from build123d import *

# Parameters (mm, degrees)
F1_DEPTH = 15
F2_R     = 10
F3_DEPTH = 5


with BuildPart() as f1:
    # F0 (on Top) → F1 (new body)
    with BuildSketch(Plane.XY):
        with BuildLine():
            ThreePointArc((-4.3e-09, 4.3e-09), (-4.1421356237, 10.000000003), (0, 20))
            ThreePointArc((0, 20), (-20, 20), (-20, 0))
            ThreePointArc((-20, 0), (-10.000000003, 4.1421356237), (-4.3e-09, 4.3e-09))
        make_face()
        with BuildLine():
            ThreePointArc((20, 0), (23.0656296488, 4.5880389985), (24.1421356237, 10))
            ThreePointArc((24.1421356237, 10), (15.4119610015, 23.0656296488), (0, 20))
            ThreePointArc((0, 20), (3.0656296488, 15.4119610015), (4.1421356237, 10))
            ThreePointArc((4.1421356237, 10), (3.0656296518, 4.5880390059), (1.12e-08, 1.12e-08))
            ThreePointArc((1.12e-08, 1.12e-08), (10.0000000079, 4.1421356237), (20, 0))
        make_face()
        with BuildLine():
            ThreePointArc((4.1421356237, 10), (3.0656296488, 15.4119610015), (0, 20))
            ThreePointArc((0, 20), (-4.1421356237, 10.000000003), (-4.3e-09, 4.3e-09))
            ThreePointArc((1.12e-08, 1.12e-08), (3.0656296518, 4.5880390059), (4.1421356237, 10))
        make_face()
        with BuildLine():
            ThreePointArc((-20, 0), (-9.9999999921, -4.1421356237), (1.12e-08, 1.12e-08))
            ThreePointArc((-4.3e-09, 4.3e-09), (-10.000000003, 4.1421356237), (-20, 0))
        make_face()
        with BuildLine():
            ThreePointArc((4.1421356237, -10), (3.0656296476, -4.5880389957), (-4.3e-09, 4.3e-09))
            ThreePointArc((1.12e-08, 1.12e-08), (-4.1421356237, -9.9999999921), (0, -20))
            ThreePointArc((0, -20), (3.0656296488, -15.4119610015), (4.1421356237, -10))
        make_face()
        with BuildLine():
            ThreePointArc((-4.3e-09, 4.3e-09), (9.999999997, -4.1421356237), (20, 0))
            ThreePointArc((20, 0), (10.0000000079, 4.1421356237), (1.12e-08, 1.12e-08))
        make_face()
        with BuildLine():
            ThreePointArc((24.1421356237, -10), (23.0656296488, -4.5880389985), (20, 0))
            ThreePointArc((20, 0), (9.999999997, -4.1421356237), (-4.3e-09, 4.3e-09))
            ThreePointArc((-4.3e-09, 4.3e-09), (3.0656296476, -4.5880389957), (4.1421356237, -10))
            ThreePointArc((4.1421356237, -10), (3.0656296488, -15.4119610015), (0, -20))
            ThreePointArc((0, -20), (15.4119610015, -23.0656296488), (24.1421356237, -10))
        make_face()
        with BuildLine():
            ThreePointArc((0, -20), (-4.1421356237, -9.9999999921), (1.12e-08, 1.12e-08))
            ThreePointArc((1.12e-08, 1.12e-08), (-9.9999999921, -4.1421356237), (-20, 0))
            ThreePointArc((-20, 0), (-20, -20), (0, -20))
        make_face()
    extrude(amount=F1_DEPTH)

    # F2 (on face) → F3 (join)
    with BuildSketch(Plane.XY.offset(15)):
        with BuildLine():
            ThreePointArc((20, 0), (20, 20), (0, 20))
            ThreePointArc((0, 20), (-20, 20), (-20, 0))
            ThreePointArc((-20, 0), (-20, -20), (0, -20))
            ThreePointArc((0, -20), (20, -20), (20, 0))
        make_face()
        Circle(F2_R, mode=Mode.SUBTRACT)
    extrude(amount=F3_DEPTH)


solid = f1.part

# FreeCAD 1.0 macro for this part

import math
import FreeCAD as App
import Part
import Sketcher
from FreeCAD import Vector

doc = App.newDocument("Part")
body = doc.addObject("PartDesign::Body", "Body")

sketch1 = body.newObject("Sketcher::SketchObject", "Sketch")
sketch1.AttachmentSupport = (doc.getObject("XY_Plane"), [""])
sketch1.MapMode = "FlatFace"
sketch1.addGeometry([
    Part.ArcOfCircle(Part.Circle(Vector(-10, 10, 0), Vector(0, 0, 1), 14), math.radians(45), math.radians(225)),
    Part.ArcOfCircle(Part.Circle(Vector(-10, -10, 0), Vector(0, 0, 1), 14), math.radians(135), math.radians(315)),
    Part.ArcOfCircle(Part.Circle(Vector(10, -10, 0), Vector(0, 0, 1), 14), math.radians(-135), math.radians(0)),
    Part.ArcOfCircle(Part.Circle(Vector(10, -10, 0), Vector(0, 0, 1), 14), math.radians(0), math.radians(45)),
    Part.ArcOfCircle(Part.Circle(Vector(10, 10, 0), Vector(0, 0, 1), 14), math.radians(-45), math.radians(0)),
    Part.ArcOfCircle(Part.Circle(Vector(10, 10, 0), Vector(0, 0, 1), 14), math.radians(0), math.radians(135)),
], False)
sketch1.addConstraint([
    Sketcher.Constraint("Coincident", 0, 2, 1, 1),
    Sketcher.Constraint("Coincident", 1, 2, 2, 1),
    Sketcher.Constraint("Tangent", 2, 2, 3, 1),
    Sketcher.Constraint("Coincident", 3, 2, 4, 1),
    Sketcher.Constraint("Tangent", 4, 2, 5, 1),
    Sketcher.Constraint("Coincident", 5, 2, 0, 1),
    Sketcher.Constraint("Equal", 0, 1),
    Sketcher.Constraint("Equal", 1, 2),
    Sketcher.Constraint("Equal", 2, 3),
    Sketcher.Constraint("Equal", 3, 4),
    Sketcher.Constraint("Equal", 4, 5),
    Sketcher.Constraint("Symmetric", 0, 3, 2, 3, -1, 1),
    Sketcher.Constraint("Symmetric", 1, 3, 4, 3, -1, 1),
    Sketcher.Constraint("Symmetric", 1, 3, 2, 3, -2),
    Sketcher.Constraint("Horizontal", 3, 3, 2, 2),
    Sketcher.Constraint("Horizontal", 5, 3, 4, 2),
    Sketcher.Constraint("DistanceX", 0, 3, -1, 1, 10.0),
    Sketcher.Constraint("DistanceY", -1, 1, 0, 3, 10.0),
    Sketcher.Constraint("DistanceX", 0, 2, -1, 1, 20.0),
])
pad1 = body.newObject("PartDesign::Pad", "Pad")
pad1.Profile = sketch1
pad1.Length = 15

sketch2 = body.newObject("Sketcher::SketchObject", "Sketch001")
sketch2.AttachmentSupport = (doc.getObject("XY_Plane"), [""])
sketch2.MapMode = "FlatFace"
sketch2.AttachmentOffset = App.Placement(Vector(0, 0, 15), App.Rotation())
sketch2.addGeometry([
    Part.ArcOfCircle(Part.Circle(Vector(10, 10, 0), Vector(0, 0, 1), 14), math.radians(-45), math.radians(135)),
    Part.ArcOfCircle(Part.Circle(Vector(-10, 10, 0), Vector(0, 0, 1), 14), math.radians(45), math.radians(225)),
    Part.ArcOfCircle(Part.Circle(Vector(-10, -10, 0), Vector(0, 0, 1), 14), math.radians(135), math.radians(315)),
    Part.ArcOfCircle(Part.Circle(Vector(10, -10, 0), Vector(0, 0, 1), 14), math.radians(-135), math.radians(45)),
    Part.Circle(Vector(0, 0, 0), Vector(0, 0, 1), 10),
], False)
sketch2.addConstraint([
    Sketcher.Constraint("Coincident", 0, 2, 1, 1),
    Sketcher.Constraint("Coincident", 1, 2, 2, 1),
    Sketcher.Constraint("Coincident", 2, 2, 3, 1),
    Sketcher.Constraint("Coincident", 3, 2, 0, 1),
    Sketcher.Constraint("Coincident", 4, 3, -1, 1),
    Sketcher.Constraint("Equal", 0, 1),
    Sketcher.Constraint("Equal", 1, 2),
    Sketcher.Constraint("Equal", 2, 3),
    Sketcher.Constraint("Symmetric", 0, 3, 2, 3, -1, 1),
    Sketcher.Constraint("Symmetric", 1, 3, 3, 3, -1, 1),
    Sketcher.Constraint("Symmetric", 0, 3, 1, 3, -2),
    Sketcher.Constraint("Diameter", 4, 20.0),
    Sketcher.Constraint("DistanceX", -1, 1, 0, 3, 10.0),
    Sketcher.Constraint("DistanceY", -1, 1, 0, 3, 10.0),
    Sketcher.Constraint("DistanceY", -1, 1, 0, 2, 20.0),
])
pad2 = body.newObject("PartDesign::Pad", "Pad001")
pad2.Profile = sketch2
pad2.Length = 5

doc.recompute()
